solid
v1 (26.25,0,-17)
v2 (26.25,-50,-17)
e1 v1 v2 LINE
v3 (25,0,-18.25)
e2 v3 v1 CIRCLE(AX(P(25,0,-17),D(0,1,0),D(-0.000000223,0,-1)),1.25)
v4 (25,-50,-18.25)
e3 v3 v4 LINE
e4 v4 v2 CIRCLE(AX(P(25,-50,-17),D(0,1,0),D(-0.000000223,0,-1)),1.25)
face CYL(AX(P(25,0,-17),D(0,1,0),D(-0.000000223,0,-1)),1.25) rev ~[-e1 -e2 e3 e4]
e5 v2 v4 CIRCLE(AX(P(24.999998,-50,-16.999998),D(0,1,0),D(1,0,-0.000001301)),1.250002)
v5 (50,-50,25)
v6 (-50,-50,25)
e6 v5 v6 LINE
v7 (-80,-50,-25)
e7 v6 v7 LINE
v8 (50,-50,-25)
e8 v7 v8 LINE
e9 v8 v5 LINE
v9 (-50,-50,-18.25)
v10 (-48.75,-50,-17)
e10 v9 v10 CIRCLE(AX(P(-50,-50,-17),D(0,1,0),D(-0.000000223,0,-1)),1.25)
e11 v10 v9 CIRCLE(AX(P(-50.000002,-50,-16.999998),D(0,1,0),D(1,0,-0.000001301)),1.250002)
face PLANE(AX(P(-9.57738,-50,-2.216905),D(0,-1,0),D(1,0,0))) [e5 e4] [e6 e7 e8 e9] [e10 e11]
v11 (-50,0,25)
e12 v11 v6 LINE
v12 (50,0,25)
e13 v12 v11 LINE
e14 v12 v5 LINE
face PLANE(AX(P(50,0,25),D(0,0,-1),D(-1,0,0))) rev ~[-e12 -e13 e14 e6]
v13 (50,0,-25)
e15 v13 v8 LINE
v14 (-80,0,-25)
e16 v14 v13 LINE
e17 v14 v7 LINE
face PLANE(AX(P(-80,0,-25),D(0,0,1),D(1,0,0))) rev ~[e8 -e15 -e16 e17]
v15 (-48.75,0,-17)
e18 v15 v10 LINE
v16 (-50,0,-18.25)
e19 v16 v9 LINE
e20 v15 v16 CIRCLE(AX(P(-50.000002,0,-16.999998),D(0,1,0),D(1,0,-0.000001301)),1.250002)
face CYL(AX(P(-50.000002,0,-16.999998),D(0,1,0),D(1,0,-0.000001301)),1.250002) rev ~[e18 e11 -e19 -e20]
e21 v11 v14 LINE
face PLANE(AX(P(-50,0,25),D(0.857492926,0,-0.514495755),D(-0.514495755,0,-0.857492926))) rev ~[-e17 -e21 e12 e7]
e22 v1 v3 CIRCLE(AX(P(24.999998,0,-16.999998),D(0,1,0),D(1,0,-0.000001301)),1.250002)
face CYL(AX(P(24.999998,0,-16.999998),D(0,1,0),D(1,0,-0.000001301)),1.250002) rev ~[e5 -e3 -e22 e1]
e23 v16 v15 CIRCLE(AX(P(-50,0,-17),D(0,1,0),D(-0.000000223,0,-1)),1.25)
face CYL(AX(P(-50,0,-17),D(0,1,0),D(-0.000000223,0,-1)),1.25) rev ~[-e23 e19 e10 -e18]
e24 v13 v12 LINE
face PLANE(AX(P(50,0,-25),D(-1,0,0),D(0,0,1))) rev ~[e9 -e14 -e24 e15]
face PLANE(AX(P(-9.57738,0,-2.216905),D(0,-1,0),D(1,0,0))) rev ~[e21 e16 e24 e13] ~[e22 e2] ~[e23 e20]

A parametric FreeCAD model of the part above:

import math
import FreeCAD as App
import Part
import Sketcher
from FreeCAD import Vector
Q = App.Units.Quantity

doc = App.newDocument("Part")
params = doc.addObject("Spreadsheet::Sheet", "Params")
for row, (alias, value) in enumerate([
    ("sketch1_width", "100 mm"),
    ("sketch1_width2", "130 mm"),
    ("sketch1_height", "50 mm"),
    ("sketch1_radius", "1.25 mm"),
    ("pad1_length", "50 mm"),
], start=1):
    params.set(f"A{row}", alias)
    params.set(f"B{row}", "=" + value)
    params.setAlias(f"B{row}", alias)

body = doc.addObject("PartDesign::Body", "Body")

# Sketch on XZ plane
sketch1 = doc.addObject("Sketcher::SketchObject", "Sketch")
body.addObject(sketch1)
sketch1.AttachmentSupport = (doc.XZ_Plane, [""])
sketch1.MapMode = "FlatFace"
sketch1.addGeometry([
    Part.LineSegment(Vector(50, -25, 0), Vector(50, 25, 0)),  # 0
    Part.LineSegment(Vector(50, 25, 0), Vector(-50, 25, 0)),  # 1
    Part.LineSegment(Vector(-50, 25, 0), Vector(-80, -25, 0)),  # 2
    Part.LineSegment(Vector(-80, -25, 0), Vector(50, -25, 0)),  # 3
    Part.ArcOfCircle(Part.Circle(Vector(-50, -17, 0), Vector(0, 0, 1), 1.2), math.radians(0), math.radians(270)),  # 4
    Part.ArcOfCircle(Part.Circle(Vector(-50, -17, 0), Vector(0, 0, 1), 1.3), math.radians(-90), math.radians(0)),  # 5
    Part.ArcOfCircle(Part.Circle(Vector(25, -17, 0), Vector(0, 0, 1), 1.3), math.radians(-90), math.radians(0)),  # 6
    Part.ArcOfCircle(Part.Circle(Vector(25, -17, 0), Vector(0, 0, 1), 1.2), math.radians(0), math.radians(270)),  # 7
], False)
sketch1.addConstraint([
    Sketcher.Constraint("Coincident", 0, 2, 1, 1),
    Sketcher.Constraint("Coincident", 1, 2, 2, 1),
    Sketcher.Constraint("Coincident", 2, 2, 3, 1),
    Sketcher.Constraint("Coincident", 3, 2, 0, 1),
    Sketcher.Constraint("Tangent", 4, 1, 5, 2),
    Sketcher.Constraint("Coincident", 5, 1, 4, 2),
    Sketcher.Constraint("Tangent", 6, 1, 7, 2),
    Sketcher.Constraint("Coincident", 7, 1, 6, 2),
    Sketcher.Constraint("Vertical", 0),
    Sketcher.Constraint("Horizontal", 1),
    Sketcher.Constraint("Horizontal", 3),
    Sketcher.Constraint("Equal", 5, 6),
    Sketcher.Constraint("Symmetric", 1, 2, 3, 2, -1, 1),
    Sketcher.Constraint("Horizontal", 5, 3, 6, 3),
    Sketcher.Constraint("Horizontal", 7, 3, 4, 1),
    Sketcher.Constraint("Horizontal", 4, 1, 7, 1),
    Sketcher.Constraint("Vertical", 5, 3, 1, 2),
    Sketcher.Constraint("Vertical", 1, 2, 5, 1),
    Sketcher.Constraint("Vertical", 7, 3, 6, 1),
    Sketcher.Constraint("DistanceX", 1, 2, 1, 1, Q("100 mm")),
    Sketcher.Constraint("DistanceX", 3, 1, 3, 2, Q("130 mm")),
    Sketcher.Constraint("DistanceY", 0, 1, 0, 2, Q("50 mm")),
    Sketcher.Constraint("Radius", 4, Q("1.25 mm")),
    Sketcher.Constraint("DistanceY", 4, 3, -1, 1, Q("17 mm")),
    Sketcher.Constraint("DistanceX", -1, 1, 6, 3, Q("24.999998 mm")),
])
sketch1.setExpression("Constraints[19]", "Params.sketch1_width")
sketch1.setExpression("Constraints[20]", "Params.sketch1_width2")
sketch1.setExpression("Constraints[21]", "Params.sketch1_height")
sketch1.setExpression("Constraints[22]", "Params.sketch1_radius")
pad1 = doc.addObject("PartDesign::Pad", "Pad")
body.addObject(pad1)
pad1.Profile = sketch1
pad1.setExpression("Length", "Params.pad1_length")

doc.recompute()
